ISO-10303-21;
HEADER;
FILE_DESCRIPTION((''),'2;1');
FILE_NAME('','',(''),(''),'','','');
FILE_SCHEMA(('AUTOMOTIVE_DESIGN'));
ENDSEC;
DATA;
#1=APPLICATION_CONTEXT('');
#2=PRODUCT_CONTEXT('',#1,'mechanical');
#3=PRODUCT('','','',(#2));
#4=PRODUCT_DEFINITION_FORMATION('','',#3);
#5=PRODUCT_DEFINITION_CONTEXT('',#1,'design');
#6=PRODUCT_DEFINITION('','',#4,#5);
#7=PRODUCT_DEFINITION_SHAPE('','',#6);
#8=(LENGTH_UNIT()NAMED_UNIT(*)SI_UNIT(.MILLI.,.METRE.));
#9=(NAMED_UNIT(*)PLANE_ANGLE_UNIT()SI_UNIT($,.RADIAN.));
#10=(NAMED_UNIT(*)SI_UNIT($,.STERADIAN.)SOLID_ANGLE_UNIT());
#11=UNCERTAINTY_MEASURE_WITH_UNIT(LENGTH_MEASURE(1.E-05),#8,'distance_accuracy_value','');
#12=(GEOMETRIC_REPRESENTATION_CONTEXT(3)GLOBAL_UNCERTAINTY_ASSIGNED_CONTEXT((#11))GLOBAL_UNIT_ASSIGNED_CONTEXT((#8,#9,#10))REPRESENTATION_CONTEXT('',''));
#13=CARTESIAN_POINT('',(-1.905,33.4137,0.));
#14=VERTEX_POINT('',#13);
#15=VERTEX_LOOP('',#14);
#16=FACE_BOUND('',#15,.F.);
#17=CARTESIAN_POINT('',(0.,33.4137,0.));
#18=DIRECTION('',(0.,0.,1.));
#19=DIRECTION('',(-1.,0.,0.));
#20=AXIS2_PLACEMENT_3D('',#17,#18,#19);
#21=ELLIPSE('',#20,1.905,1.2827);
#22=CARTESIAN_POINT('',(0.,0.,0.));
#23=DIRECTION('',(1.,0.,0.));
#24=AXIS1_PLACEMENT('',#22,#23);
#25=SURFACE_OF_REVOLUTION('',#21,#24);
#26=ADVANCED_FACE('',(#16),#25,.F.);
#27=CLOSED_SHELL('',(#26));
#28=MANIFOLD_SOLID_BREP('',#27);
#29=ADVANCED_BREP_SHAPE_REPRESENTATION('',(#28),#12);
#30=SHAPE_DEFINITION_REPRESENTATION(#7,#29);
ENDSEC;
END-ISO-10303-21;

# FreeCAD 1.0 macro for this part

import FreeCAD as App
import Part
import Sketcher

V = App.Vector

doc = App.newDocument("Part")
params = doc.addObject("Spreadsheet::Sheet", "Params")
for row, (alias, value) in enumerate([
    ("revolution_angle", "360 deg"),
], start=1):
    params.set(f"A{row}", alias)
    params.set(f"B{row}", "=" + value)
    params.setAlias(f"B{row}", alias)

body = doc.addObject("PartDesign::Body", "Body")

sketch1 = doc.addObject("Sketcher::SketchObject", "Sketch")
body.addObject(sketch1)
sketch1.AttachmentSupport = (doc.XY_Plane, [""])
sketch1.MapMode = "FlatFace"
sketch1.addGeometry(Part.Ellipse(V(-1.905, 33.4137, 0), V(0, 32.131, 0), V(0, 33.4137, 0)), False)
sketch1.addConstraint(Sketcher.Constraint("Block", 0))
revolution = doc.addObject("PartDesign::Revolution", "Revolution")
body.addObject(revolution)
revolution.Profile = sketch1
revolution.ReferenceAxis = (sketch1, ["H_Axis"])
revolution.setExpression("Angle", "Params.revolution_angle")

doc.recompute()
